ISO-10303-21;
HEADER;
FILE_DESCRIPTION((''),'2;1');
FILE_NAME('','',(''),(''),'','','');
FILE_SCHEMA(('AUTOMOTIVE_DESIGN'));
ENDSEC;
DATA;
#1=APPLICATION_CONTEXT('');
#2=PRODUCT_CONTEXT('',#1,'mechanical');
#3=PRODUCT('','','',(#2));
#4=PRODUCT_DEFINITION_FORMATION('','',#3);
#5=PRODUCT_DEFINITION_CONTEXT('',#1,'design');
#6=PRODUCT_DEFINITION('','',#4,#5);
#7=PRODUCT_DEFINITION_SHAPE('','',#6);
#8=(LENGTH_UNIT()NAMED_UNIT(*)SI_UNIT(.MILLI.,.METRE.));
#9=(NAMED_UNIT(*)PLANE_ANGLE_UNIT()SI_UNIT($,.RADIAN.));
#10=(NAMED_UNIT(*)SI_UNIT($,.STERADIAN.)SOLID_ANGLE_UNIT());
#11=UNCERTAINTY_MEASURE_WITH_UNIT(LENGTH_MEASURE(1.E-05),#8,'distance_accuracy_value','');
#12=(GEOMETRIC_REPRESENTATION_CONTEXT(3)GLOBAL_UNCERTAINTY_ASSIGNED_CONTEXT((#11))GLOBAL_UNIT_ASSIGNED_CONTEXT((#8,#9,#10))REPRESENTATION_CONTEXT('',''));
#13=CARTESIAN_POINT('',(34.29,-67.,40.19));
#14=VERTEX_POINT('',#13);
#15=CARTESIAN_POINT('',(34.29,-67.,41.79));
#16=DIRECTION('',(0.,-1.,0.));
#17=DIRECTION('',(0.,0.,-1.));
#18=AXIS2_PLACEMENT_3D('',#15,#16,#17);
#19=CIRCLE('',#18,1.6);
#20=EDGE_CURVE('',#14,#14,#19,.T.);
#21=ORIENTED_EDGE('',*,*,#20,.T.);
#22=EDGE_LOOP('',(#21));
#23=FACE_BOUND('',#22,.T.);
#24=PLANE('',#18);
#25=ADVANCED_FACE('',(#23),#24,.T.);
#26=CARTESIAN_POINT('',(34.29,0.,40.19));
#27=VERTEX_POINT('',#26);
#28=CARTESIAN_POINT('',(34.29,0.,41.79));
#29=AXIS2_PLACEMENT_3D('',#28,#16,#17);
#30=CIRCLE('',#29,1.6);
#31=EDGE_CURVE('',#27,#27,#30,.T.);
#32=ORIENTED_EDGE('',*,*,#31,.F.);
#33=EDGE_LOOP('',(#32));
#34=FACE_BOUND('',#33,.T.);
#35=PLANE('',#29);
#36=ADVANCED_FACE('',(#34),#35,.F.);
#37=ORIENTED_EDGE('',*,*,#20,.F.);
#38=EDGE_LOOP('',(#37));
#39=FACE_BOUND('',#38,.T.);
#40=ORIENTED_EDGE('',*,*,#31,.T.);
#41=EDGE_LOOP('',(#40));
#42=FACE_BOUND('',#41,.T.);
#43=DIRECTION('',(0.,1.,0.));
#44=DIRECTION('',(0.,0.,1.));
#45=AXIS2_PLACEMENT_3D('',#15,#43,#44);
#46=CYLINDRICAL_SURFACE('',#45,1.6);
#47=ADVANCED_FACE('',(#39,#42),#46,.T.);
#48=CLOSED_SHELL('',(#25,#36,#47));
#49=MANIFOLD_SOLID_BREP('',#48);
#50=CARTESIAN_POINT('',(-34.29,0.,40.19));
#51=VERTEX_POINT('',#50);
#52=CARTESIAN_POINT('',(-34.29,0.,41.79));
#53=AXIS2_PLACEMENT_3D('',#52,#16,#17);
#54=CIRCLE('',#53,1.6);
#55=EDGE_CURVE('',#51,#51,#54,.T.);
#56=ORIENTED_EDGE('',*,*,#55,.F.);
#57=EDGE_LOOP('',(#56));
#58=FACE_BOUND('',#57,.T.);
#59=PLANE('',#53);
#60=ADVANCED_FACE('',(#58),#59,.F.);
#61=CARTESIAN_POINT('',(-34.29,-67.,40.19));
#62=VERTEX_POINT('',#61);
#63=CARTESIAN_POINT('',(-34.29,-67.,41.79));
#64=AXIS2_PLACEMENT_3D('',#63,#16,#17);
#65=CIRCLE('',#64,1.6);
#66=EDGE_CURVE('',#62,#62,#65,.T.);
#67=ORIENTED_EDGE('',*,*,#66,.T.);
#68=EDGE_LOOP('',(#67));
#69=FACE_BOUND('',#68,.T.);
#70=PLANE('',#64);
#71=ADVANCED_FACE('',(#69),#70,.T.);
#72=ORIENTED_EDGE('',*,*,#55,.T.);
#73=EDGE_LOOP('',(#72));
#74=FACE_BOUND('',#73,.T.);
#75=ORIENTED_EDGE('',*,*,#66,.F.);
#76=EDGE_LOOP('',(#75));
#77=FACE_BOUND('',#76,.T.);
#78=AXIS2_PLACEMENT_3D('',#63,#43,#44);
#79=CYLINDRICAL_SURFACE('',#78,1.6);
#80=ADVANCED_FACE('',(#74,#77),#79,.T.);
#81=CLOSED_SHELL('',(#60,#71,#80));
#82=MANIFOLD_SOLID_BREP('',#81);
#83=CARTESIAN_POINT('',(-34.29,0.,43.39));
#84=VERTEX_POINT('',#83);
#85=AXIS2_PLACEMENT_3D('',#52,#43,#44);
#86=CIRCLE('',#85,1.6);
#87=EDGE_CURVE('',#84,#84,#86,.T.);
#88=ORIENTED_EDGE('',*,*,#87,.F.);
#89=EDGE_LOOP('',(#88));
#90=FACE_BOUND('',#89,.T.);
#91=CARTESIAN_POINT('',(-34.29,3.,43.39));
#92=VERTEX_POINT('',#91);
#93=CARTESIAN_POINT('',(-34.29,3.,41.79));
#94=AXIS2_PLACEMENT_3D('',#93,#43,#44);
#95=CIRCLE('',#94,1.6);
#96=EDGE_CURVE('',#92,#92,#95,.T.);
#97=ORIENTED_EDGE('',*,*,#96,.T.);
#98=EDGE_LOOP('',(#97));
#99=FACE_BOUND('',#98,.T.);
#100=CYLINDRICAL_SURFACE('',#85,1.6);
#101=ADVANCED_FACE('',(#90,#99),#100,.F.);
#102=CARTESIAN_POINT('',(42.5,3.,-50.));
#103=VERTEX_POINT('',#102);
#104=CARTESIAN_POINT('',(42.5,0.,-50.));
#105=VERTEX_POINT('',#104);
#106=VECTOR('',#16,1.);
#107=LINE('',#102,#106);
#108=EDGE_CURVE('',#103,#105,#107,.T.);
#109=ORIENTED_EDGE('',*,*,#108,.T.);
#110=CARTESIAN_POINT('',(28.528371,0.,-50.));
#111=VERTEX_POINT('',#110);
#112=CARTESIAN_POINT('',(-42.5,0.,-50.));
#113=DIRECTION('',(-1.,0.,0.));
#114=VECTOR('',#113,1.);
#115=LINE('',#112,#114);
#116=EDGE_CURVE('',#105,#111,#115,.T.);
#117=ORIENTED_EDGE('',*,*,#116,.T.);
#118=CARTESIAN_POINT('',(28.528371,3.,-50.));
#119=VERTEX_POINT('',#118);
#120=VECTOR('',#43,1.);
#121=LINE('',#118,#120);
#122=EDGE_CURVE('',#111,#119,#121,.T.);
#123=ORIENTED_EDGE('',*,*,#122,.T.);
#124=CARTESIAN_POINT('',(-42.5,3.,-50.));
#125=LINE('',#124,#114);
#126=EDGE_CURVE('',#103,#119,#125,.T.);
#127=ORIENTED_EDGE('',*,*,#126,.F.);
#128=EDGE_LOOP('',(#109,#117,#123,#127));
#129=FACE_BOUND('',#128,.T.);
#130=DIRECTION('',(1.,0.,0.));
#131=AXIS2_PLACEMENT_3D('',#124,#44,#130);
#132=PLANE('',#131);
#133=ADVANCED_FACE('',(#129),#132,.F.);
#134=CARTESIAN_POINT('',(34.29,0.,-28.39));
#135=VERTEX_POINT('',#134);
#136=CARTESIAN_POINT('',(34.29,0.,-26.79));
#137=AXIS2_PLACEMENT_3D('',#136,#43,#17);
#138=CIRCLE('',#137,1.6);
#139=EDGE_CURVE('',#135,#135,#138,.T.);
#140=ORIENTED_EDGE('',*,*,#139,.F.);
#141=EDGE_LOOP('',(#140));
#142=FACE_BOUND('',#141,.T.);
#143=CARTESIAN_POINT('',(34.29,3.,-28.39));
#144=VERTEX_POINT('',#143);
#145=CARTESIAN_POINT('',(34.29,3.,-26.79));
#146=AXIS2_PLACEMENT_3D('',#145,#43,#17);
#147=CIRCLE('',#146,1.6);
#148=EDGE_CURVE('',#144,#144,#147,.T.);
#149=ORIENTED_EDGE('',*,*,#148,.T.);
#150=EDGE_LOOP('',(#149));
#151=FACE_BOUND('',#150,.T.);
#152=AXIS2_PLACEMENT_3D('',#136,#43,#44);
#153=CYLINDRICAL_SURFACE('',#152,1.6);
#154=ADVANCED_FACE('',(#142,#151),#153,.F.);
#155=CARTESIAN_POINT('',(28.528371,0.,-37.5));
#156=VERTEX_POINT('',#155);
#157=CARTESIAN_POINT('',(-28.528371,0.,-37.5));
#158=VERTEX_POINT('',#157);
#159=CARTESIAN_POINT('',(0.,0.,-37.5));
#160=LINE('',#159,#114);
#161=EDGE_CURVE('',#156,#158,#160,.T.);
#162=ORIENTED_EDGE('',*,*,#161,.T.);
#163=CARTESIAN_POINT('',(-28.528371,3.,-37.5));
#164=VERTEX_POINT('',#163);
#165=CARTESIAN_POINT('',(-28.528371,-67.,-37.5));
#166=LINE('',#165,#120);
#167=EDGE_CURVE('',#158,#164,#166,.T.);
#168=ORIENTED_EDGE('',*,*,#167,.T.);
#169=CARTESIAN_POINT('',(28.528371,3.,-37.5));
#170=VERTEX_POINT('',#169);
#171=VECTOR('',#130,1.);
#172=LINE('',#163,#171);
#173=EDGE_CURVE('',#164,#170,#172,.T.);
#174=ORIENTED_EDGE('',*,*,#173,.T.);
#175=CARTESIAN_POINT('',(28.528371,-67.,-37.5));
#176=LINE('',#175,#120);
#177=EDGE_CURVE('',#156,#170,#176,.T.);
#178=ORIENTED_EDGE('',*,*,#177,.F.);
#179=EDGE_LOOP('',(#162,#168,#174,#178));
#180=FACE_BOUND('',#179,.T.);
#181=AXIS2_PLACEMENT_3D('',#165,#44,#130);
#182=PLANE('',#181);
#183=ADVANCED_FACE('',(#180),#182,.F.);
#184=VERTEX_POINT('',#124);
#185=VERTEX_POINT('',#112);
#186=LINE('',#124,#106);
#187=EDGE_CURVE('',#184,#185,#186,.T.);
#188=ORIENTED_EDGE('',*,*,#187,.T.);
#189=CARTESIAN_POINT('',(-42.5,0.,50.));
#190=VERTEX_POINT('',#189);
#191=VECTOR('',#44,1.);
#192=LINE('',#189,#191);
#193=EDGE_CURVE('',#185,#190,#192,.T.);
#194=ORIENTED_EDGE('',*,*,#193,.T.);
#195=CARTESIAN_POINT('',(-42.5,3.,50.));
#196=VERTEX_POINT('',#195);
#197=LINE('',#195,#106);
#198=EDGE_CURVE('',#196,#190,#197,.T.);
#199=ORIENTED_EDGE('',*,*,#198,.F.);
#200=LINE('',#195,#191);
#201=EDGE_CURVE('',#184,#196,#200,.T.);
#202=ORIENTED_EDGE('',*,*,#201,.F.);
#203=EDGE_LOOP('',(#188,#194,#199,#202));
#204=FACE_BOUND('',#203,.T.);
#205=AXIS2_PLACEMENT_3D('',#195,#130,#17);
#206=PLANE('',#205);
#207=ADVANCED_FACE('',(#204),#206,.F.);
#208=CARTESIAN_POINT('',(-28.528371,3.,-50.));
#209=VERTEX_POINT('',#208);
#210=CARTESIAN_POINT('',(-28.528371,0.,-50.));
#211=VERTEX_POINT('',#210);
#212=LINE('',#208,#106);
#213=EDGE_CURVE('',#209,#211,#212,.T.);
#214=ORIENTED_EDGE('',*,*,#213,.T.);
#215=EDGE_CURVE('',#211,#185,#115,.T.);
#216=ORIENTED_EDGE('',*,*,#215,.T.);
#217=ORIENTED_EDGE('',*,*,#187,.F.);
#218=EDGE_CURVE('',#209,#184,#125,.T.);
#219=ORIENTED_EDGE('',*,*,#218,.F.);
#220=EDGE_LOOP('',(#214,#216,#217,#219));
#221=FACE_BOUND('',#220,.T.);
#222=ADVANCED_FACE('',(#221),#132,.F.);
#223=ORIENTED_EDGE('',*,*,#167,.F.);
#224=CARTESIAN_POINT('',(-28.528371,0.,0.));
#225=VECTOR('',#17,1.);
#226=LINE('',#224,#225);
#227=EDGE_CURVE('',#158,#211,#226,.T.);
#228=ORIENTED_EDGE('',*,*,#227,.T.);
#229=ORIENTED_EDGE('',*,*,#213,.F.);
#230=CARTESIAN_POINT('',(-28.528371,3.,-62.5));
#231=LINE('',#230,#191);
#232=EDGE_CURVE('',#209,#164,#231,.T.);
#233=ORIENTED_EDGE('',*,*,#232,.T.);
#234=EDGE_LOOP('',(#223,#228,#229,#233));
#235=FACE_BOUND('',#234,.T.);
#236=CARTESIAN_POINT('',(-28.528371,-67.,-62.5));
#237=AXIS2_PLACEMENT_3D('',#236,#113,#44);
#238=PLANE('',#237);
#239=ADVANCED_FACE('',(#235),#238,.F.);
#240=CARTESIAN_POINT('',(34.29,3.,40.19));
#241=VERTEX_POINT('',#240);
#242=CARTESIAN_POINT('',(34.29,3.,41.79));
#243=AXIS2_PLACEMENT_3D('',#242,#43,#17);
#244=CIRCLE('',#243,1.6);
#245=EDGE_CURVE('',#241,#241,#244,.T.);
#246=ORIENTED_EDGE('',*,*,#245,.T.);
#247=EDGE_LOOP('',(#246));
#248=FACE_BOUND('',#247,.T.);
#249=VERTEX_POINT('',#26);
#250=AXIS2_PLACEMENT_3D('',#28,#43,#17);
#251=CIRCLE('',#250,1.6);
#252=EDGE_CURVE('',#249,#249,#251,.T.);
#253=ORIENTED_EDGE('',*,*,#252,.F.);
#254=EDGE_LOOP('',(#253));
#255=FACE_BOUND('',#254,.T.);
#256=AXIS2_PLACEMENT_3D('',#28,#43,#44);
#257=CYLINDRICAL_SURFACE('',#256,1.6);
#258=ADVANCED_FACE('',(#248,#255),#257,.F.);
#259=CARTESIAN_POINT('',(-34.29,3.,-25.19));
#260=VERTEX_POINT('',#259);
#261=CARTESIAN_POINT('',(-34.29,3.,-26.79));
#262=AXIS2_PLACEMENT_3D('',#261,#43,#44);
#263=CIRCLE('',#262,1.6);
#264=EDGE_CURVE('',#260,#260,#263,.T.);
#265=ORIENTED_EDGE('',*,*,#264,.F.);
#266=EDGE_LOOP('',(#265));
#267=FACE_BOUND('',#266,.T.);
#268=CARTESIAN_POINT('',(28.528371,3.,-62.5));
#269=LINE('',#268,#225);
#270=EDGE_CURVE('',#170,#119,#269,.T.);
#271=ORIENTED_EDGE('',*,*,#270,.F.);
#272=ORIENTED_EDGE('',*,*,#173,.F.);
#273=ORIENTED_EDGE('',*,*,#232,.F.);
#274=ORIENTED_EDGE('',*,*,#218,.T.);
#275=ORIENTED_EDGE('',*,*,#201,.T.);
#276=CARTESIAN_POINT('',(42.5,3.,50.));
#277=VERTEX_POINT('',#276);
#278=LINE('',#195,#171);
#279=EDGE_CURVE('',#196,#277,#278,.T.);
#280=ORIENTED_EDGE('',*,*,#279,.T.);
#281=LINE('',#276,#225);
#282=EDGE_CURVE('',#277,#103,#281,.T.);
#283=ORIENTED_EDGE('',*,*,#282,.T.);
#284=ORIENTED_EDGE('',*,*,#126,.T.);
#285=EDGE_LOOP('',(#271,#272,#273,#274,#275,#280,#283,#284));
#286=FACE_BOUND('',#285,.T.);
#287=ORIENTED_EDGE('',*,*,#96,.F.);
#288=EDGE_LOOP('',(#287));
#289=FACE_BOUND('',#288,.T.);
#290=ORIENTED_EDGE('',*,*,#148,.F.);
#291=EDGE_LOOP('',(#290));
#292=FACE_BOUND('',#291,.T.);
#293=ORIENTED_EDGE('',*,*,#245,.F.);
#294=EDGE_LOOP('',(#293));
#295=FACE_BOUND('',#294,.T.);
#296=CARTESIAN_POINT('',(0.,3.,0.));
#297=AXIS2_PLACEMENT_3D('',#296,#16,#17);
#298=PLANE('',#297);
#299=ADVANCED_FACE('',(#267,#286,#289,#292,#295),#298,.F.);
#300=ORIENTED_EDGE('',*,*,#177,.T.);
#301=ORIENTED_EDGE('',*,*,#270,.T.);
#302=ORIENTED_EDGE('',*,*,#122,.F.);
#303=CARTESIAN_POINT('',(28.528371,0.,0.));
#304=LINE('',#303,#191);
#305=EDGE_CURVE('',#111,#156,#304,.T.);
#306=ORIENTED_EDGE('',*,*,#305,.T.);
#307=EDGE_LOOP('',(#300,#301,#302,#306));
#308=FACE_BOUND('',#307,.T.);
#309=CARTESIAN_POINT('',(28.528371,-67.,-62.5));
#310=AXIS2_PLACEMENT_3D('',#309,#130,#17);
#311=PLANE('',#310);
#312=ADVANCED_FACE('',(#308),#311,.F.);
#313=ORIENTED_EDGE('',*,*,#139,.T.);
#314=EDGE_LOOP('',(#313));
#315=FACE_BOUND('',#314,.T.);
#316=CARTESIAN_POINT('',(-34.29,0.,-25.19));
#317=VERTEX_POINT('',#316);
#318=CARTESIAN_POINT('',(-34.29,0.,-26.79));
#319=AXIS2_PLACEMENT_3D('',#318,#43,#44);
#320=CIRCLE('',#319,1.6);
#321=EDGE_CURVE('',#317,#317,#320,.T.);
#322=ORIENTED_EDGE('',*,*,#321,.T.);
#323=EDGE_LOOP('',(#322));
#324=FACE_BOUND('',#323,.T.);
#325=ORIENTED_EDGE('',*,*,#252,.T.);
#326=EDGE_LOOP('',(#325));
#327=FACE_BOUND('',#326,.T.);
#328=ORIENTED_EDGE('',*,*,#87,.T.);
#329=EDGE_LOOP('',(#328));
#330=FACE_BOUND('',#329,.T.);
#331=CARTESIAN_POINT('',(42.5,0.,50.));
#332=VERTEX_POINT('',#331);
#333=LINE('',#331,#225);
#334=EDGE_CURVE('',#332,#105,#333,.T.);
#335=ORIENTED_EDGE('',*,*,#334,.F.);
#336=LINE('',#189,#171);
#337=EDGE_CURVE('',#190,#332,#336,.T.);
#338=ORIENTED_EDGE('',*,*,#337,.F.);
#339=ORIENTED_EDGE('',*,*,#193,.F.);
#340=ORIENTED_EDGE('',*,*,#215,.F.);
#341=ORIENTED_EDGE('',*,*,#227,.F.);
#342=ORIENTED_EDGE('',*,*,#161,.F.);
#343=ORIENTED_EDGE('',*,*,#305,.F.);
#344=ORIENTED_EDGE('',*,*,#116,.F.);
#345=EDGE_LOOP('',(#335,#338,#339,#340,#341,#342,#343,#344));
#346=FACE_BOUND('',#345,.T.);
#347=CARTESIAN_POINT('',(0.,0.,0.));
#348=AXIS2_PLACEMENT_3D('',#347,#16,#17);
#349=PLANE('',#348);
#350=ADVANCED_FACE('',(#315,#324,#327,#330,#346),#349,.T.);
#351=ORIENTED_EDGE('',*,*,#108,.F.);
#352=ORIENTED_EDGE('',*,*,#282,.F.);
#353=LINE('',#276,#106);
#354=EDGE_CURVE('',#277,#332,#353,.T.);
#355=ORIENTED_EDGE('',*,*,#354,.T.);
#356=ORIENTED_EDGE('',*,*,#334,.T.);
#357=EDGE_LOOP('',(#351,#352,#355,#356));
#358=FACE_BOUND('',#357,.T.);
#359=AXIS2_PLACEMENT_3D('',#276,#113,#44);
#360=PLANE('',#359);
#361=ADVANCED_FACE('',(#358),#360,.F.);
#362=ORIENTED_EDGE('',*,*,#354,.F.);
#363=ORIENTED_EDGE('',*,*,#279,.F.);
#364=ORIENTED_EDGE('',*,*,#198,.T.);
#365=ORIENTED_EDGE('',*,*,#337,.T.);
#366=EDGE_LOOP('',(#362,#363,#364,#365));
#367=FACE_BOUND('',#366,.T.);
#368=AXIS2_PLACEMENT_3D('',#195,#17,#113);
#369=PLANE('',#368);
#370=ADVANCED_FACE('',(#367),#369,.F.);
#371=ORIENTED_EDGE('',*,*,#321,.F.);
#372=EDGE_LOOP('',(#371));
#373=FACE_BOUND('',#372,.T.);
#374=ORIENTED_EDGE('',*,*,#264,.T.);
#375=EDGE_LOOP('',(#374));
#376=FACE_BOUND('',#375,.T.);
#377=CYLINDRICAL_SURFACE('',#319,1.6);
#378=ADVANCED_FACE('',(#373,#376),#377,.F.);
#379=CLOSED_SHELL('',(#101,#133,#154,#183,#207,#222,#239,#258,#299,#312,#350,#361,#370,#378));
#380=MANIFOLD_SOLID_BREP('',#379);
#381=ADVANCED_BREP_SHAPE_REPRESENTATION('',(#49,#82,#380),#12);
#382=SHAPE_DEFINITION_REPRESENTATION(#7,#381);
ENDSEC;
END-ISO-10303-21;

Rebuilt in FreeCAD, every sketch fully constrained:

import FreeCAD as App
import Part
import Sketcher

V = App.Vector

doc = App.newDocument("Part")
params = doc.addObject("Spreadsheet::Sheet", "Params")
for row, (alias, value) in enumerate([
    ("sketch1_width", "85 mm"),
    ("sketch1_height", "100 mm"),
    ("pad1_length", "3 mm"),
    ("sketch2_diameter", "3.2 mm"),
    ("sketch3_height", "25 mm"),
    ("sketch4_diameter", "3.2 mm"),
    ("pad2_length", "67 mm"),
    ("sketch5_diameter", "3.2 mm"),
    ("pad3_length", "67 mm"),
], start=1):
    params.set(f"A{row}", alias)
    params.set(f"B{row}", "=" + value)
    params.setAlias(f"B{row}", alias)

body = doc.addObject("PartDesign::Body", "Body")

sketch1 = body.newObject("Sketcher::SketchObject", "Sketch")
sketch1.AttachmentSupport = (doc.getObject("XZ_Plane"), [""])
sketch1.MapMode = "FlatFace"
sketch1.addGeometry(Part.LineSegment(V(-42.5, -50, 0), V(-42.5, 50, 0)), False)
sketch1.addGeometry(Part.LineSegment(V(-42.5, 50, 0), V(42.5, 50, 0)), False)
sketch1.addGeometry(Part.LineSegment(V(42.5, 50, 0), V(42.5, -50, 0)), False)
sketch1.addGeometry(Part.LineSegment(V(42.5, -50, 0), V(-42.5, -50, 0)), False)
sketch1.addConstraint(Sketcher.Constraint("Coincident", 0, 2, 1, 1))
sketch1.addConstraint(Sketcher.Constraint("Coincident", 1, 2, 2, 1))
sketch1.addConstraint(Sketcher.Constraint("Coincident", 2, 2, 3, 1))
sketch1.addConstraint(Sketcher.Constraint("Coincident", 3, 2, 0, 1))
sketch1.addConstraint(Sketcher.Constraint("Vertical", 0))
sketch1.addConstraint(Sketcher.Constraint("Horizontal", 1))
sketch1.addConstraint(Sketcher.Constraint("Vertical", 2))
sketch1.addConstraint(Sketcher.Constraint("Horizontal", 3))
sketch1.addConstraint(Sketcher.Constraint("Symmetric", 0, 2, 2, 2, -1, 1))
sketch1.addConstraint(Sketcher.Constraint("DistanceX", 1, 1, 1, 2, 85.0))
sketch1.addConstraint(Sketcher.Constraint("DistanceY", 0, 1, 0, 2, 100.0))
sketch1.setExpression("Constraints[9]", "Params.sketch1_width")
sketch1.setExpression("Constraints[10]", "Params.sketch1_height")
pad1 = body.newObject("PartDesign::Pad", "Pad")
pad1.Profile = sketch1
pad1.setExpression("Length", "Params.pad1_length")
pad1.Reversed = True

sketch2 = body.newObject("Sketcher::SketchObject", "Sketch001")
sketch2.AttachmentSupport = (doc.getObject("XZ_Plane"), [""])
sketch2.MapMode = "FlatFace"
sketch2.AttachmentOffset = App.Placement(V(0, 0, -3), App.Rotation())
sketch2.addGeometry(Part.Circle(V(-34.29, -26.79, 0), V(0, 0, 1), 1.6), False)
sketch2.addGeometry(Part.Circle(V(-34.29, 41.79, 0), V(0, 0, 1), 1.6), False)
sketch2.addGeometry(Part.Circle(V(34.29, 41.79, 0), V(0, 0, 1), 1.6), False)
sketch2.addGeometry(Part.Circle(V(34.29, -26.79, 0), V(0, 0, 1), 1.6), False)
sketch2.addConstraint(Sketcher.Constraint("Equal", 0, 1))
sketch2.addConstraint(Sketcher.Constraint("Equal", 1, 2))
sketch2.addConstraint(Sketcher.Constraint("Equal", 2, 3))
sketch2.addConstraint(Sketcher.Constraint("Symmetric", 1, 3, 2, 3, -2))
sketch2.addConstraint(Sketcher.Constraint("Symmetric", 0, 3, 3, 3, -2))
sketch2.addConstraint(Sketcher.Constraint("Vertical", 0, 3, 1, 3))
sketch2.addConstraint(Sketcher.Constraint("Diameter", 0, 3.2))
sketch2.addConstraint(Sketcher.Constraint("DistanceX", 0, 3, -1, 1, 34.29))
sketch2.addConstraint(Sketcher.Constraint("DistanceY", 0, 3, -1, 1, 26.79))
sketch2.addConstraint(Sketcher.Constraint("DistanceY", -1, 1, 1, 3, 41.79))
sketch2.setExpression("Constraints[6]", "Params.sketch2_diameter")
pocket1 = body.newObject("PartDesign::Pocket", "Pocket")
pocket1.Profile = sketch2
pocket1.Type = "ThroughAll"
pocket1.Reversed = True

sketch3 = body.newObject("Sketcher::SketchObject", "Sketch002")
sketch3.AttachmentSupport = (doc.getObject("XZ_Plane"), [""])
sketch3.MapMode = "FlatFace"
sketch3.AttachmentOffset = App.Placement(V(0, 0, -3), App.Rotation())
sketch3.addGeometry(Part.LineSegment(V(-28.528371, -62.5, 0), V(-28.528371, -37.5, 0)), False)
sketch3.addGeometry(Part.LineSegment(V(-28.528371, -37.5, 0), V(28.528371, -37.5, 0)), False)
sketch3.addGeometry(Part.LineSegment(V(28.528371, -37.5, 0), V(28.528371, -62.5, 0)), False)
sketch3.addGeometry(Part.LineSegment(V(28.528371, -62.5, 0), V(-28.528371, -62.5, 0)), False)
sketch3.addConstraint(Sketcher.Constraint("Coincident", 0, 2, 1, 1))
sketch3.addConstraint(Sketcher.Constraint("Coincident", 1, 2, 2, 1))
sketch3.addConstraint(Sketcher.Constraint("Coincident", 2, 2, 3, 1))
sketch3.addConstraint(Sketcher.Constraint("Coincident", 3, 2, 0, 1))
sketch3.addConstraint(Sketcher.Constraint("Vertical", 0))
sketch3.addConstraint(Sketcher.Constraint("Horizontal", 1))
sketch3.addConstraint(Sketcher.Constraint("Vertical", 2))
sketch3.addConstraint(Sketcher.Constraint("Horizontal", 3))
sketch3.addConstraint(Sketcher.Constraint("DistanceY", 0, 1, 0, 2, 25.0))
sketch3.addConstraint(Sketcher.Constraint("DistanceY", 0, 2, -1, 1, 37.5))
sketch3.addConstraint(Sketcher.Constraint("DistanceX", 1, 1, 1, 2, 57.056741))
sketch3.addConstraint(Sketcher.Constraint("DistanceX", 0, 2, -1, 1, 28.528371))
sketch3.setExpression("Constraints[8]", "Params.sketch3_height")
pocket2 = body.newObject("PartDesign::Pocket", "Pocket001")
pocket2.Profile = sketch3
pocket2.Type = "ThroughAll"
pocket2.Reversed = True
body2 = doc.addObject("PartDesign::Body", "Body001")

sketch4 = body2.newObject("Sketcher::SketchObject", "Sketch003")
sketch4.AttachmentSupport = (doc.getObject("XZ_Plane001"), [""])
sketch4.MapMode = "FlatFace"
sketch4.addGeometry(Part.Circle(V(-34.29, 41.79, 0), V(0, 0, 1), 1.6), False)
sketch4.addConstraint(Sketcher.Constraint("Diameter", 0, 3.2))
sketch4.addConstraint(Sketcher.Constraint("DistanceX", 0, 3, -1, 1, 34.29))
sketch4.addConstraint(Sketcher.Constraint("DistanceY", -1, 1, 0, 3, 41.79))
sketch4.setExpression("Constraints[0]", "Params.sketch4_diameter")
pad2 = body2.newObject("PartDesign::Pad", "Pad001")
pad2.Profile = sketch4
pad2.setExpression("Length", "Params.pad2_length")
body3 = doc.addObject("PartDesign::Body", "Body002")

sketch5 = body3.newObject("Sketcher::SketchObject", "Sketch004")
sketch5.AttachmentSupport = (doc.getObject("XZ_Plane002"), [""])
sketch5.MapMode = "FlatFace"
sketch5.addGeometry(Part.Circle(V(34.29, 41.79, 0), V(0, 0, 1), 1.6), False)
sketch5.addConstraint(Sketcher.Constraint("Diameter", 0, 3.2))
sketch5.addConstraint(Sketcher.Constraint("DistanceX", -1, 1, 0, 3, 34.29))
sketch5.addConstraint(Sketcher.Constraint("DistanceY", -1, 1, 0, 3, 41.79))
sketch5.setExpression("Constraints[0]", "Params.sketch5_diameter")
pad3 = body3.newObject("PartDesign::Pad", "Pad002")
pad3.Profile = sketch5
pad3.setExpression("Length", "Params.pad3_length")

doc.recompute()
